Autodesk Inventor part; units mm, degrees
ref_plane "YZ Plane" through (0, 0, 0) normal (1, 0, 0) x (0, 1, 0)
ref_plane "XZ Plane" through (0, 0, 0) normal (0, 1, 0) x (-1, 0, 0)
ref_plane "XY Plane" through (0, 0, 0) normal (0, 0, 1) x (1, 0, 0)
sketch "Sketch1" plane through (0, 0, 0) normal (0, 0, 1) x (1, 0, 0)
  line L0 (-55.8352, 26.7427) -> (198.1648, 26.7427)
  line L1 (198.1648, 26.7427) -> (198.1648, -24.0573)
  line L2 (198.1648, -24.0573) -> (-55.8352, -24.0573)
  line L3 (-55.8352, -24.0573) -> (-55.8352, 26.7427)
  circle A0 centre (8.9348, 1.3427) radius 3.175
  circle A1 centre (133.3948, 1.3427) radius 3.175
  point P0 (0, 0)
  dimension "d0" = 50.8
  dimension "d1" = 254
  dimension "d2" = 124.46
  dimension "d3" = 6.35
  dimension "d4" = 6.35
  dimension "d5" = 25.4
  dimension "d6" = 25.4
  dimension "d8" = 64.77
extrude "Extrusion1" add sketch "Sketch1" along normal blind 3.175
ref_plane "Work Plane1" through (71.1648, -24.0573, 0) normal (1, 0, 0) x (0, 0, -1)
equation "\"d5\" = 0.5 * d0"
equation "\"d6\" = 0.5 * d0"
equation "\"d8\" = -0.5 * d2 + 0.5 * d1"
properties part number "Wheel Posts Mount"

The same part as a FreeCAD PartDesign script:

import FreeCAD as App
import Part
import Sketcher

V = App.Vector
Q = App.Units.Quantity

doc = App.newDocument("Part")
body = doc.addObject("PartDesign::Body", "Body")

# Sketch on XY plane
sketch1 = body.newObject("Sketcher::SketchObject", "Sketch")
sketch1.AttachmentSupport = (doc.getObject("XY_Plane"), [""])
sketch1.MapMode = "FlatFace"
sketch1.addGeometry([
    Part.LineSegment(V(198.1648, 26.7427, 0), V(-55.8352, 26.7427, 0)),  # 0
    Part.LineSegment(V(-55.8352, 26.7427, 0), V(-55.8352, -24.0573, 0)),  # 1
    Part.LineSegment(V(-55.8352, -24.0573, 0), V(198.1648, -24.0573, 0)),  # 2
    Part.LineSegment(V(198.1648, -24.0573, 0), V(198.1648, 26.7427, 0)),  # 3
    Part.Circle(V(8.9348, 1.3427, 0), V(0, 0, 1), 3.175),  # 4
    Part.Circle(V(133.3948, 1.3427, 0), V(0, 0, 1), 3.175),  # 5
], False)
sketch1.addConstraint([
    Sketcher.Constraint("Coincident", 0, 2, 1, 1),
    Sketcher.Constraint("Coincident", 1, 2, 2, 1),
    Sketcher.Constraint("Coincident", 2, 2, 3, 1),
    Sketcher.Constraint("Coincident", 3, 2, 0, 1),
    Sketcher.Constraint("Horizontal", 0),
    Sketcher.Constraint("Vertical", 1),
    Sketcher.Constraint("Horizontal", 2),
    Sketcher.Constraint("Vertical", 3),
    Sketcher.Constraint("Equal", 4, 5),
    Sketcher.Constraint("Horizontal", 4, 3, 5, 3),
    Sketcher.Constraint("Diameter", 4, Q("0.25 in")),
    Sketcher.Constraint("DistanceX", 0, 2, 0, 1, Q("10 in")),
    Sketcher.Constraint("DistanceY", 1, 2, 1, 1, Q("2 in")),
    Sketcher.Constraint("DistanceY", 4, 3, 0, 2, Q("1 in")),
    Sketcher.Constraint("DistanceX", 4, 3, 5, 3, Q("4.9 in")),
    Sketcher.Constraint("DistanceX", 0, 2, 4, 3, Q("2.55 in")),
    Sketcher.Constraint("DistanceX", -1, 1, 4, 3, 8.9348),
    Sketcher.Constraint("DistanceY", -1, 1, 4, 3, 1.3427),
])
pad1 = body.newObject("PartDesign::Pad", "Pad")
pad1.Profile = sketch1
pad1.Length = Q("0.125 in")

doc.recompute()
